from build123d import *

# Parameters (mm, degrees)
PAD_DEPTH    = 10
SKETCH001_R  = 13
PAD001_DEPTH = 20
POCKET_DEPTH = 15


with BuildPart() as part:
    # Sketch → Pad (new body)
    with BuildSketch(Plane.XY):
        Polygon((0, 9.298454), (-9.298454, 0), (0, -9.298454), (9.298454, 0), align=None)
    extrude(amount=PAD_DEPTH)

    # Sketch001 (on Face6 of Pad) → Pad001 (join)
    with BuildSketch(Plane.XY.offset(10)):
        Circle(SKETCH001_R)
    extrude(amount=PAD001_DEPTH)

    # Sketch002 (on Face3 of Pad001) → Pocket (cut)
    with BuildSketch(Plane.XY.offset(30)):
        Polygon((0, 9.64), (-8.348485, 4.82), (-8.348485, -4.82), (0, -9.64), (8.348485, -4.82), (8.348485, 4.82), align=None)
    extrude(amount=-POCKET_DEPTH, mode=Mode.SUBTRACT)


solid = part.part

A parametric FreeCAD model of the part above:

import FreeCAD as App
import Part
import Sketcher

V = App.Vector
Q = App.Units.Quantity

doc = App.newDocument("Part")
body = doc.addObject("PartDesign::Body", "Body")

# Sketch on XY plane
sketch1 = body.newObject("Sketcher::SketchObject", "Sketch")
sketch1.AttachmentSupport = (doc.getObject("XY_Plane"), [""])
sketch1.MapMode = "FlatFace"
sketch1.addGeometry(Part.LineSegment(V(0, 9, 0), V(-9, 0, 0)), False)
sketch1.addGeometry(Part.LineSegment(V(-9, 0, 0), V(0, -9, 0)), False)
sketch1.addGeometry(Part.LineSegment(V(0, -9, 0), V(9, 0, 0)), False)
sketch1.addGeometry(Part.LineSegment(V(9, 0, 0), V(0, 9, 0)), False)
sketch1.addConstraint(Sketcher.Constraint("Coincident", 0, 2, 1, 1))
sketch1.addConstraint(Sketcher.Constraint("Coincident", 1, 2, 2, 1))
sketch1.addConstraint(Sketcher.Constraint("Coincident", 2, 2, 3, 1))
sketch1.addConstraint(Sketcher.Constraint("Coincident", 3, 2, 0, 1))
sketch1.addConstraint(Sketcher.Constraint("Symmetric", 0, 2, 2, 2, -1, 1))
sketch1.addConstraint(Sketcher.Constraint("Symmetric", 1, 2, 3, 2, -1, 1))
sketch1.addConstraint(Sketcher.Constraint("PointOnObject", 0, 2, -1))
sketch1.addConstraint(Sketcher.Constraint("PointOnObject", 1, 2, -2))
sketch1.addConstraint(Sketcher.Constraint("Perpendicular", 0, 1))
sketch1.addConstraint(Sketcher.Constraint("Distance", 0, 13.15))
pad1 = body.newObject("PartDesign::Pad", "Pad")
pad1.Profile = sketch1
pad1.Length = 10

# Sketch on XY plane
sketch2 = body.newObject("Sketcher::SketchObject", "Sketch001")
sketch2.AttachmentSupport = (doc.getObject("XY_Plane"), [""])
sketch2.MapMode = "FlatFace"
sketch2.AttachmentOffset = App.Placement(V(0, 0, 10), App.Rotation())
sketch2.addGeometry(Part.Circle(V(0, 0, 0), V(0, 0, 1), 13), False)
sketch2.addConstraint(Sketcher.Constraint("Coincident", 0, 3, -1, 1))
sketch2.addConstraint(Sketcher.Constraint("Diameter", 0, 26.0))
pad2 = body.newObject("PartDesign::Pad", "Pad001")
pad2.Profile = sketch2
pad2.Length = 20

# Sketch on XY plane
sketch3 = body.newObject("Sketcher::SketchObject", "Sketch002")
sketch3.AttachmentSupport = (doc.getObject("XY_Plane"), [""])
sketch3.MapMode = "FlatFace"
sketch3.AttachmentOffset = App.Placement(V(0, 0, 30), App.Rotation())
sketch3.addGeometry(Part.LineSegment(V(0, 10, 0), V(-8, 5, 0)), False)
sketch3.addGeometry(Part.LineSegment(V(-8, 5, 0), V(-8, -5, 0)), False)
sketch3.addGeometry(Part.LineSegment(V(-8, -5, 0), V(0, -10, 0)), False)
sketch3.addGeometry(Part.LineSegment(V(0, -10, 0), V(8, -5, 0)), False)
sketch3.addGeometry(Part.LineSegment(V(8, -5, 0), V(8, 5, 0)), False)
sketch3.addGeometry(Part.LineSegment(V(8, 5, 0), V(0, 10, 0)), False)
sketch3.addConstraint(Sketcher.Constraint("Coincident", 0, 2, 1, 1))
sketch3.addConstraint(Sketcher.Constraint("Coincident", 1, 2, 2, 1))
sketch3.addConstraint(Sketcher.Constraint("Coincident", 2, 2, 3, 1))
sketch3.addConstraint(Sketcher.Constraint("Coincident", 3, 2, 4, 1))
sketch3.addConstraint(Sketcher.Constraint("Coincident", 4, 2, 5, 1))
sketch3.addConstraint(Sketcher.Constraint("Coincident", 5, 2, 0, 1))
sketch3.addConstraint(Sketcher.Constraint("Vertical", 1))
sketch3.addConstraint(Sketcher.Constraint("Vertical", 4))
sketch3.addConstraint(Sketcher.Constraint("Symmetric", 0, 2, 3, 2, -1, 1))
sketch3.addConstraint(Sketcher.Constraint("Symmetric", 2, 2, 5, 2, -1, 1))
sketch3.addConstraint(Sketcher.Constraint("PointOnObject", 2, 2, -2))
sketch3.addConstraint(Sketcher.Constraint("Parallel", 2, 5))
sketch3.addConstraint(Sketcher.Constraint("Horizontal", 1, 2, 3, 2))
sketch3.addConstraint(Sketcher.Constraint("Angle", 0, Q("-150 deg")))
sketch3.addConstraint(Sketcher.Constraint("DistanceY", 1, 2, 1, 1, 9.64))
sketch3.addConstraint(Sketcher.Constraint("Distance", 0, 9.64))
pocket1 = body.newObject("PartDesign::Pocket", "Pocket")
pocket1.Profile = sketch3
pocket1.Length = 15

doc.recompute()
